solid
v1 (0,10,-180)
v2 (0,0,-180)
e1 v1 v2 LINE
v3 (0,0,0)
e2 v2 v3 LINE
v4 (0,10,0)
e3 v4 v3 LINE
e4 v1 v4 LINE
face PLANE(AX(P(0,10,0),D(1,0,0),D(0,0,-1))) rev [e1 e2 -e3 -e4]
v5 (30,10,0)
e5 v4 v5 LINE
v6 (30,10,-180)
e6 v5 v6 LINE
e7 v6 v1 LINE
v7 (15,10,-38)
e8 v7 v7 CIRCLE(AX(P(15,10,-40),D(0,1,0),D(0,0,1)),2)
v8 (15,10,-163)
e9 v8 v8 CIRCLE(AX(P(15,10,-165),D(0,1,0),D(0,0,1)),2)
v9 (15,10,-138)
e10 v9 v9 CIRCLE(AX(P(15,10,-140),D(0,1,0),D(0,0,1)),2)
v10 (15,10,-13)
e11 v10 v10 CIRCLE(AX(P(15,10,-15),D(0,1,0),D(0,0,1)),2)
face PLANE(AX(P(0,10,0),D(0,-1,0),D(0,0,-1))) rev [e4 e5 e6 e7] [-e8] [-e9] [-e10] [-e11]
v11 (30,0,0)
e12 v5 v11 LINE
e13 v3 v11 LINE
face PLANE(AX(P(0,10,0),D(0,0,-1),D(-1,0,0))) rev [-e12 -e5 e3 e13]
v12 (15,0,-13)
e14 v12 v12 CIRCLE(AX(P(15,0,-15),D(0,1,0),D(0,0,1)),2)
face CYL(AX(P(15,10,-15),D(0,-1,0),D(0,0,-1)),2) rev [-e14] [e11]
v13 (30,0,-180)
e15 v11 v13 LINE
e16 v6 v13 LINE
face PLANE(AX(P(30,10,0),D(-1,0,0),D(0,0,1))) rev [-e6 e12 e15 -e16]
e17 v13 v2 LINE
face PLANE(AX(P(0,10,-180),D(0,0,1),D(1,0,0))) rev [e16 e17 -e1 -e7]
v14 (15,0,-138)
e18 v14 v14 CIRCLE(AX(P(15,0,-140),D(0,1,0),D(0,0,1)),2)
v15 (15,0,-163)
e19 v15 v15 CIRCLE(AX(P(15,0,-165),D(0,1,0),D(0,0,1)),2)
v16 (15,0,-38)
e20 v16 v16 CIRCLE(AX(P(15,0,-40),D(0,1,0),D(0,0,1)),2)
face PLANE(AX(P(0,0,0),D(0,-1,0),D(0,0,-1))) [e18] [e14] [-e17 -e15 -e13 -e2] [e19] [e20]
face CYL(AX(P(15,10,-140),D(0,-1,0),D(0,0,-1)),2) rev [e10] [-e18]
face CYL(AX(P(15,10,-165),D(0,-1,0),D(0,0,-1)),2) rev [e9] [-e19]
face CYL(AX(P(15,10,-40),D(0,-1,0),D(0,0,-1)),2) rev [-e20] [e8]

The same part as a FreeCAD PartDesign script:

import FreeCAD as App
import Part
import Sketcher

doc = App.newDocument("Part")
body = doc.addObject("PartDesign::Body", "Body")

sketch1 = body.newObject("Sketcher::SketchObject", "Sketch")
sketch1.AttachmentSupport = (doc.getObject("XZ_Plane"), [""])
sketch1.MapMode = "FlatFace"
sketch1.addGeometry([
    Part.LineSegment(App.Vector(0, -180, 0), App.Vector(0, 0, 0)),
    Part.LineSegment(App.Vector(0, 0, 0), App.Vector(30, 0, 0)),
    Part.LineSegment(App.Vector(30, 0, 0), App.Vector(30, -180, 0)),
    Part.LineSegment(App.Vector(30, -180, 0), App.Vector(0, -180, 0)),
    Part.Circle(App.Vector(15, -15, 0), App.Vector(0, 0, 1), 2),
    Part.Circle(App.Vector(15, -40, 0), App.Vector(0, 0, 1), 2),
    Part.Circle(App.Vector(15, -140, 0), App.Vector(0, 0, 1), 2),
    Part.Circle(App.Vector(15, -165, 0), App.Vector(0, 0, 1), 2),
], False)
sketch1.addConstraint([
    Sketcher.Constraint("Coincident", 0, 2, 1, 1),
    Sketcher.Constraint("Coincident", 1, 2, 2, 1),
    Sketcher.Constraint("Coincident", 2, 2, 3, 1),
    Sketcher.Constraint("Coincident", 3, 2, 0, 1),
    Sketcher.Constraint("Vertical", 0),
    Sketcher.Constraint("Horizontal", 1),
    Sketcher.Constraint("Vertical", 2),
    Sketcher.Constraint("Horizontal", 3),
    Sketcher.Constraint("Coincident", 0, 2, -1, 1),
    Sketcher.Constraint("Equal", 4, 5),
    Sketcher.Constraint("Equal", 5, 6),
    Sketcher.Constraint("Equal", 6, 7),
    Sketcher.Constraint("Vertical", 4, 3, 5, 3),
    Sketcher.Constraint("Vertical", 5, 3, 6, 3),
    Sketcher.Constraint("Vertical", 6, 3, 7, 3),
    Sketcher.Constraint("Diameter", 4, 4.0),
    Sketcher.Constraint("DistanceX", 1, 1, 1, 2, 30.0),
    Sketcher.Constraint("DistanceY", 0, 1, 0, 2, 180.0),
    Sketcher.Constraint("DistanceX", -1, 1, 4, 3, 15.0),
    Sketcher.Constraint("DistanceY", 4, 3, -1, 1, 15.0),
    Sketcher.Constraint("DistanceY", 5, 3, -1, 1, 40.0),
    Sketcher.Constraint("DistanceY", 6, 3, -1, 1, 140.0),
    Sketcher.Constraint("DistanceY", 7, 3, -1, 1, 165.0),
])
pad1 = body.newObject("PartDesign::Pad", "Pad")
pad1.Profile = sketch1
pad1.Length = 10
pad1.Reversed = True

doc.recompute()
